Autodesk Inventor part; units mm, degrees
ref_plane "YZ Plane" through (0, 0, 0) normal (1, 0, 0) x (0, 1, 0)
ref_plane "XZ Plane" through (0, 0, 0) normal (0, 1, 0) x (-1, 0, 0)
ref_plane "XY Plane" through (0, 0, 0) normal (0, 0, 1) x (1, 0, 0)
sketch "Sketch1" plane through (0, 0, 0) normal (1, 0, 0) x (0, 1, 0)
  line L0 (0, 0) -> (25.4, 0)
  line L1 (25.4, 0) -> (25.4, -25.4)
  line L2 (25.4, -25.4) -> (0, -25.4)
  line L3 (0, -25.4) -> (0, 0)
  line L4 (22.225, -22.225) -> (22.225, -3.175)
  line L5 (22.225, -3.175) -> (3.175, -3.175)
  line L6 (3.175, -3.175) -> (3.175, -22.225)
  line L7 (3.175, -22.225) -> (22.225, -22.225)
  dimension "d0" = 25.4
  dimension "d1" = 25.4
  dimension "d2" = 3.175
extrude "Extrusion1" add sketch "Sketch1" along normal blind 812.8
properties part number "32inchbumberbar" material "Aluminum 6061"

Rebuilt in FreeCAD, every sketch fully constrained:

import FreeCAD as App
import Part
import Sketcher

V = App.Vector
Q = App.Units.Quantity

doc = App.newDocument("Part")
body = doc.addObject("PartDesign::Body", "Body")

# Sketch on YZ plane
sketch1 = body.newObject("Sketcher::SketchObject", "Sketch")
sketch1.AttachmentSupport = (doc.getObject("YZ_Plane"), [""])
sketch1.MapMode = "FlatFace"
sketch1.addGeometry([
    Part.LineSegment(V(25, 0, 0), V(0, 0, 0)),  # 0
    Part.LineSegment(V(0, 0, 0), V(0, -25, 0)),  # 1
    Part.LineSegment(V(0, -25, 0), V(25, -25, 0)),  # 2
    Part.LineSegment(V(25, -25, 0), V(25, 0, 0)),  # 3
    Part.LineSegment(V(22, -3, 0), V(22, -22, 0)),  # 4
    Part.LineSegment(V(22, -22, 0), V(3, -22, 0)),  # 5
    Part.LineSegment(V(3, -22, 0), V(3, -3, 0)),  # 6
    Part.LineSegment(V(3, -3, 0), V(22, -3, 0)),  # 7
], False)
sketch1.addConstraint([
    Sketcher.Constraint("Coincident", 0, 2, 1, 1),
    Sketcher.Constraint("Coincident", 1, 2, 2, 1),
    Sketcher.Constraint("Coincident", 2, 2, 3, 1),
    Sketcher.Constraint("Coincident", 3, 2, 0, 1),
    Sketcher.Constraint("Coincident", 4, 2, 5, 1),
    Sketcher.Constraint("Coincident", 5, 2, 6, 1),
    Sketcher.Constraint("Coincident", 6, 2, 7, 1),
    Sketcher.Constraint("Coincident", 7, 2, 4, 1),
    Sketcher.Constraint("Horizontal", 0),
    Sketcher.Constraint("Vertical", 1),
    Sketcher.Constraint("Horizontal", 2),
    Sketcher.Constraint("Vertical", 3),
    Sketcher.Constraint("Vertical", 4),
    Sketcher.Constraint("Horizontal", 5),
    Sketcher.Constraint("Vertical", 6),
    Sketcher.Constraint("Horizontal", 7),
    Sketcher.Constraint("Coincident", 0, 2, -1, 1),
    Sketcher.Constraint("Equal", 2, 1),
    Sketcher.Constraint("Equal", 7, 4),
    Sketcher.Constraint("DistanceX", 0, 2, 0, 1, Q("1 in")),
    Sketcher.Constraint("DistanceX", -1, 1, 5, 2, Q("0.125 in")),
    Sketcher.Constraint("DistanceY", 6, 2, -1, 1, Q("0.125 in")),
    Sketcher.Constraint("DistanceX", 4, 2, 2, 2, Q("0.125 in")),
])
pad1 = body.newObject("PartDesign::Pad", "Pad")
pad1.Profile = sketch1
pad1.Length = Q("32 in")

doc.recompute()
